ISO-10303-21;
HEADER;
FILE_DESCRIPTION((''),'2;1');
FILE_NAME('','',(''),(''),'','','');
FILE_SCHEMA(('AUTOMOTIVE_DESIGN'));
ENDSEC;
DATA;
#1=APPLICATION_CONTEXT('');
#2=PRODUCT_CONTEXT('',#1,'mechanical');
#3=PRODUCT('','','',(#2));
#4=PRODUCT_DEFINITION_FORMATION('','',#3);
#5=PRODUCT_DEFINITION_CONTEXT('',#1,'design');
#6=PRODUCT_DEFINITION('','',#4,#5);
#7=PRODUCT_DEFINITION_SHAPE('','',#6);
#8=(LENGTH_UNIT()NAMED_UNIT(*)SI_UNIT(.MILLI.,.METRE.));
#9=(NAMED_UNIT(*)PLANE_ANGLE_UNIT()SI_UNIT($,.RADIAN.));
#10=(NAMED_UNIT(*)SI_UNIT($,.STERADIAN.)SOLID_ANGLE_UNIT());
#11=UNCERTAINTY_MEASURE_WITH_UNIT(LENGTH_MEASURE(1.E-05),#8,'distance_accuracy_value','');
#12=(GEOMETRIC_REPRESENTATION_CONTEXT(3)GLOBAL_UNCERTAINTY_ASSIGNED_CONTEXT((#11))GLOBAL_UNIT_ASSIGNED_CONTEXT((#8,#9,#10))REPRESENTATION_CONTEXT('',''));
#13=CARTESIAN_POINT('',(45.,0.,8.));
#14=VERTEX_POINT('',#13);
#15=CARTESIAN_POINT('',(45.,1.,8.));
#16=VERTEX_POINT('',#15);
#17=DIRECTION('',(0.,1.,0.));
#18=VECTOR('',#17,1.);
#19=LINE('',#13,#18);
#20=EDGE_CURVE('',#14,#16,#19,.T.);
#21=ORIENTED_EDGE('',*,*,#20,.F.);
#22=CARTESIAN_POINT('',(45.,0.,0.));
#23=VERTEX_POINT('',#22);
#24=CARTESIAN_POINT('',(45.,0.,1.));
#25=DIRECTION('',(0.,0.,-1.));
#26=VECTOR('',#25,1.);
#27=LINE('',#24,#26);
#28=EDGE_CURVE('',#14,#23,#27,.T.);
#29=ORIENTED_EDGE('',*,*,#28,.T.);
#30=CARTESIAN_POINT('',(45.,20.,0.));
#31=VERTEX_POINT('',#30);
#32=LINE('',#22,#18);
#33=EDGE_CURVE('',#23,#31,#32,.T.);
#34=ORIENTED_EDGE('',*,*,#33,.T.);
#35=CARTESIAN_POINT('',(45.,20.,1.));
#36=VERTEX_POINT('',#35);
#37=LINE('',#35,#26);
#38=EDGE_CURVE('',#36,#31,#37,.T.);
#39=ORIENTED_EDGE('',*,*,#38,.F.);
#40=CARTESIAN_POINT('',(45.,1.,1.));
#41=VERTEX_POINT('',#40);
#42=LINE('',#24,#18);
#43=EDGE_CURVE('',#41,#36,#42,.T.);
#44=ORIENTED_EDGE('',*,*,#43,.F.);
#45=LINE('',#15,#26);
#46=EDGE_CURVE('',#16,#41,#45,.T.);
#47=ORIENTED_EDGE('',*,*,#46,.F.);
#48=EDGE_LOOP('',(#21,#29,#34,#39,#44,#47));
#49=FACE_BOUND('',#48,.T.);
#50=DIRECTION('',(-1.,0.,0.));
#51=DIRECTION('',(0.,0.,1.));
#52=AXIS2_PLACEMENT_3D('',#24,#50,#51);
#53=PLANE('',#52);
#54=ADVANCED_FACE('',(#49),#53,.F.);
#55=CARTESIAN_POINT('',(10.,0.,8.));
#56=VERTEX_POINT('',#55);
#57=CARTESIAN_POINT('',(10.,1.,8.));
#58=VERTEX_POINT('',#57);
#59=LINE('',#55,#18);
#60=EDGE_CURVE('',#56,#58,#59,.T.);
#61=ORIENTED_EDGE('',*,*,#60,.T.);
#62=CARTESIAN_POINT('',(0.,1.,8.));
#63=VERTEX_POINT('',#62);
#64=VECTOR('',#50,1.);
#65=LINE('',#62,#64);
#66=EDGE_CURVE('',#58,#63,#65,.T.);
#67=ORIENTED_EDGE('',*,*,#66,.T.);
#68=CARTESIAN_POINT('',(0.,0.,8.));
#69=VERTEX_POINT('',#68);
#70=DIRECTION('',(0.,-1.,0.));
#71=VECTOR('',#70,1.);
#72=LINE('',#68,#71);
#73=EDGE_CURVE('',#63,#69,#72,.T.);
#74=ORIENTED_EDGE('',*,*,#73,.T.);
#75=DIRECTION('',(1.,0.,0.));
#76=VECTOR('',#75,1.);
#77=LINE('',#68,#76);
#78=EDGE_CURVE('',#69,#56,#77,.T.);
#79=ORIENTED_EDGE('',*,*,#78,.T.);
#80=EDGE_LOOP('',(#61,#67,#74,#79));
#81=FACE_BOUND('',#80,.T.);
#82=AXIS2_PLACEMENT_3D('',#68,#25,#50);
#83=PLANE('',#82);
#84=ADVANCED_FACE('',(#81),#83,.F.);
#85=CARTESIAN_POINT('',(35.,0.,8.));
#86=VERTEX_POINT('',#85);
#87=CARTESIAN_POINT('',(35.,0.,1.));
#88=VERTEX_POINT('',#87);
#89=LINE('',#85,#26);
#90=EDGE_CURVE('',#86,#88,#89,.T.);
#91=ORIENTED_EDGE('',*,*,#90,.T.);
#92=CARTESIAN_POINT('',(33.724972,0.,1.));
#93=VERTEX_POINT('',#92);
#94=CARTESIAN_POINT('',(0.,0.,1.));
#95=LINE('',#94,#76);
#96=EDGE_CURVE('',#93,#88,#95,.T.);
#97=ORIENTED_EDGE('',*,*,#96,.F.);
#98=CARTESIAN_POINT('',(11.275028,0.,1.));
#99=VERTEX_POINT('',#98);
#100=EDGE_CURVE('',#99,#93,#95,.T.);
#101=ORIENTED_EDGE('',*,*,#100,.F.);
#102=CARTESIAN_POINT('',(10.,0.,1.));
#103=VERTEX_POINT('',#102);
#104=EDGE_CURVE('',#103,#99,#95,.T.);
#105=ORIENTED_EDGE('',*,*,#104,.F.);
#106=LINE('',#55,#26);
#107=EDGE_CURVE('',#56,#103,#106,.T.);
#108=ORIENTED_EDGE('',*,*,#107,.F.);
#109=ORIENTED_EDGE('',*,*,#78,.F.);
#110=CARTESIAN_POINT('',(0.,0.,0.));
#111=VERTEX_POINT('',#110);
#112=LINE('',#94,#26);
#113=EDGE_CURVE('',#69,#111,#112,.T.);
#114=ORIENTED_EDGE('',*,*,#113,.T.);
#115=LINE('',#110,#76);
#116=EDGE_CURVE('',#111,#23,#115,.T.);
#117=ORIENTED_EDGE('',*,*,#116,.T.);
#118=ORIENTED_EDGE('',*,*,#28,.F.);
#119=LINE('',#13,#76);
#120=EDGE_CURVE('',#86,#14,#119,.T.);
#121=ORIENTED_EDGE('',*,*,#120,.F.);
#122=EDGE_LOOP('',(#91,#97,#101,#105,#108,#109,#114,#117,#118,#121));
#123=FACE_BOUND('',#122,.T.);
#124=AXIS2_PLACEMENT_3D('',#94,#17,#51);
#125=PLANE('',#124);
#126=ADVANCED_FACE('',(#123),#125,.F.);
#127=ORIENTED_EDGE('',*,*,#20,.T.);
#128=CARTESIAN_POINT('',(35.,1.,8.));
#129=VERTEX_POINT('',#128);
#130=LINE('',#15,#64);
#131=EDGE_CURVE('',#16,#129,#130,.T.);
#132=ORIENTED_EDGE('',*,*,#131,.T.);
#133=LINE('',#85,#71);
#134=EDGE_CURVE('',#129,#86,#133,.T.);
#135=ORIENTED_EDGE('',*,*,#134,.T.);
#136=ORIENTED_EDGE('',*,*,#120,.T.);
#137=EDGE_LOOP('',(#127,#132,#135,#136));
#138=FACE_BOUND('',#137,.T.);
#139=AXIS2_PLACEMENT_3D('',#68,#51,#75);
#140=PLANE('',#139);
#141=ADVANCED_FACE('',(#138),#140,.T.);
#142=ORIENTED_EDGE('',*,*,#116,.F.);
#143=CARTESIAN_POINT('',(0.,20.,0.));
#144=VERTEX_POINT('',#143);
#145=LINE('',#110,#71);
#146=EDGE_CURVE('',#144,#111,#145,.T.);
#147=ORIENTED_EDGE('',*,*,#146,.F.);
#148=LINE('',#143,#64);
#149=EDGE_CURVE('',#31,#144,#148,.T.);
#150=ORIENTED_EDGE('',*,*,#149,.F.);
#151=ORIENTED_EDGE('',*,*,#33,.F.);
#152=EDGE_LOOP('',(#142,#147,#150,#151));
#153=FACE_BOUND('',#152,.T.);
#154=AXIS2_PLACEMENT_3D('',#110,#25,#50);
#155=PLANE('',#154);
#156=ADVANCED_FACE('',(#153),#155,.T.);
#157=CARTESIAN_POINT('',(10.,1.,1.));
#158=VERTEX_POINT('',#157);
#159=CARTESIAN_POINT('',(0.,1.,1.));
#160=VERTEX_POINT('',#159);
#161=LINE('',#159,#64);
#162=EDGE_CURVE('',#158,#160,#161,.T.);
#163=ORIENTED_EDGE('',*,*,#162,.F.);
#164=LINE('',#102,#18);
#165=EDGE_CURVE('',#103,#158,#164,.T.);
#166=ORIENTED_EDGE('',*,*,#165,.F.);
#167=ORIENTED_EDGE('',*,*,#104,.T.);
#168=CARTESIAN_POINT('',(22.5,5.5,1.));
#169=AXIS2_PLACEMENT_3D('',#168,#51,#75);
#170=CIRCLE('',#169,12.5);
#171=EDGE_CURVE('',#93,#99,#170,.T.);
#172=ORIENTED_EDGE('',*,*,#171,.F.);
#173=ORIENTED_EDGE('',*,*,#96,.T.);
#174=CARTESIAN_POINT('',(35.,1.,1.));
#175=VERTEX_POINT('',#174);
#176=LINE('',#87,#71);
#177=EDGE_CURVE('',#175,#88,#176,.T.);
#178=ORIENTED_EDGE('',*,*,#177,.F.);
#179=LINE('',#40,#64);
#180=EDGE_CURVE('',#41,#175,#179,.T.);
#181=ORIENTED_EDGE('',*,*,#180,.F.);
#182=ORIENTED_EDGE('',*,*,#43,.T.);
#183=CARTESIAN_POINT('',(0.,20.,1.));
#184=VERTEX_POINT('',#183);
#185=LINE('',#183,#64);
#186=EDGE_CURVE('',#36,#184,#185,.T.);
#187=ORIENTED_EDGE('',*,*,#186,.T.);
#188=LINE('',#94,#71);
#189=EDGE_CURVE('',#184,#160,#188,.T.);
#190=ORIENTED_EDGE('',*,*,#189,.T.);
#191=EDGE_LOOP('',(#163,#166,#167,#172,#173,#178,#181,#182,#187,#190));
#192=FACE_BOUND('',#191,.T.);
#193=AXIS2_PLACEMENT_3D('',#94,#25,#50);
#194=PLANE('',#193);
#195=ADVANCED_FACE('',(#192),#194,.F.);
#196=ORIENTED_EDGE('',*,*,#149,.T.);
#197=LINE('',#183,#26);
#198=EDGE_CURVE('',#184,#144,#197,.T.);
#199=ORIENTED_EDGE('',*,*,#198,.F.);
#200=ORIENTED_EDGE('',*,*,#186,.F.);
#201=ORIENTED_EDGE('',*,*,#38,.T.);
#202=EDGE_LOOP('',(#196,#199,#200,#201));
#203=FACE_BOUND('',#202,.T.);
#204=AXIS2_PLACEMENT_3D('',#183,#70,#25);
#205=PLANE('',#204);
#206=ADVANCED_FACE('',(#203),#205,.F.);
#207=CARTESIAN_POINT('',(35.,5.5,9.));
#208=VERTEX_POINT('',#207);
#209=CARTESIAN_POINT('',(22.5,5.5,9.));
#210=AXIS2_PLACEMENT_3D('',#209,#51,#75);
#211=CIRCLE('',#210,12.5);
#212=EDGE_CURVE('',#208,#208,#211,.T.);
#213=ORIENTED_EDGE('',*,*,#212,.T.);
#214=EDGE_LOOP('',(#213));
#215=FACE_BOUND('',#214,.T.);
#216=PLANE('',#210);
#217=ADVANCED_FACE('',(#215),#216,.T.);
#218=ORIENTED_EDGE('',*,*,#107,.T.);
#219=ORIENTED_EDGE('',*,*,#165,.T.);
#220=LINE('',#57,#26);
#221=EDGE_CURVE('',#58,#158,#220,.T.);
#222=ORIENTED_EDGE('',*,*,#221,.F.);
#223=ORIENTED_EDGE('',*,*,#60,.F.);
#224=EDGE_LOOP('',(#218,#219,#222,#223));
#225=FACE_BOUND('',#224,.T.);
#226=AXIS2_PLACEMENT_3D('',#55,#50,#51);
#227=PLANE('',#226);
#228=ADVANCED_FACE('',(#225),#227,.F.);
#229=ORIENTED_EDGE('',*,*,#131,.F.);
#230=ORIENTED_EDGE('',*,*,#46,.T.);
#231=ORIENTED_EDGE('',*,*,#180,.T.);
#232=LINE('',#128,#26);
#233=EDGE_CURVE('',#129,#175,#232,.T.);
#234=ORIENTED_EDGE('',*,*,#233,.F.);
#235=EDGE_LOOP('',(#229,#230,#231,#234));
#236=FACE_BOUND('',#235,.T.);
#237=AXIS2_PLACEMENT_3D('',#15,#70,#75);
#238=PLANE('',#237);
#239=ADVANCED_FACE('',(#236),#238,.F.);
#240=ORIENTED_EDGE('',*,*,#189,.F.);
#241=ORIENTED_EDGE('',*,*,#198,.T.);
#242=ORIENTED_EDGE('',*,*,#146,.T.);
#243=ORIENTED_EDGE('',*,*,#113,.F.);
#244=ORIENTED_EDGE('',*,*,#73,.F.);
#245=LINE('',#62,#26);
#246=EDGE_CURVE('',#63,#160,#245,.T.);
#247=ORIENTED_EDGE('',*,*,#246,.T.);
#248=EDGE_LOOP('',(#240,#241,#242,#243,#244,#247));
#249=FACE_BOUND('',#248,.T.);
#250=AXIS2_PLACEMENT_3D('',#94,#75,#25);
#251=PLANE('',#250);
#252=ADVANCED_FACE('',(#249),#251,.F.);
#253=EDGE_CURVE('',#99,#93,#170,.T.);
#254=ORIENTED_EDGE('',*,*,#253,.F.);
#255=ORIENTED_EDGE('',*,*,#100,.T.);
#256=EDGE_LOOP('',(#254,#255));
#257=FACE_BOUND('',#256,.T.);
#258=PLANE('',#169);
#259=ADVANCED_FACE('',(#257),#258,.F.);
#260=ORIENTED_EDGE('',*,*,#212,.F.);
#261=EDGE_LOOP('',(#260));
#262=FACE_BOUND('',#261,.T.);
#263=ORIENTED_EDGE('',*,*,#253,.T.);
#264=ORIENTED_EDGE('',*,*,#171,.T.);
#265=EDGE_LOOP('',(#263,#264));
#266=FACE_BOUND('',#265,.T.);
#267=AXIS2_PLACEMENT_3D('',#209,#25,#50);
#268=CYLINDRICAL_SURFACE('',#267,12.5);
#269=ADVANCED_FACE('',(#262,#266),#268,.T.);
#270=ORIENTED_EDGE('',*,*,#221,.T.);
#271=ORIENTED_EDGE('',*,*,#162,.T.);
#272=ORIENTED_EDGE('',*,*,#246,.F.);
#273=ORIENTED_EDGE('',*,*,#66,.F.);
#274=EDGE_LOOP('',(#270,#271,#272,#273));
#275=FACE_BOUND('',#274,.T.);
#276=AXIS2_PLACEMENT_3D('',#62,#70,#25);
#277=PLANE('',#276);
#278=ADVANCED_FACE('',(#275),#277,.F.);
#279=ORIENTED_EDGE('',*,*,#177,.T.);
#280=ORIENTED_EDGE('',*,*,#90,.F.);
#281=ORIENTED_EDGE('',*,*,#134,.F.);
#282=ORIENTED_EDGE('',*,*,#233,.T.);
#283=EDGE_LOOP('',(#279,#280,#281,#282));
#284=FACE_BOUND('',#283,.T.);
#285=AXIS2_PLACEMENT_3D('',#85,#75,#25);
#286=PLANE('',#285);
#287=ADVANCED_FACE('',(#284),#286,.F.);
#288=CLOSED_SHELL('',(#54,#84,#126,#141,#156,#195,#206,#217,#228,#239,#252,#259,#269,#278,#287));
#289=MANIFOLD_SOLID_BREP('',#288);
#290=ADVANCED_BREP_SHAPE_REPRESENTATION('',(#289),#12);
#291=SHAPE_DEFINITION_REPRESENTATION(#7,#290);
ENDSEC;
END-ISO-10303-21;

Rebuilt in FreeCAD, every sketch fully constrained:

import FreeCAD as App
import Part
import Sketcher
from FreeCAD import Vector
Q = App.Units.Quantity


def add_polygon(sketch, points):
    """Adds a closed chain of lines whose ends are joined by coincident constraints."""
    first, n = sketch.GeometryCount, len(points)
    for a, b in zip(points, points[1:] + points[:1]):
        sketch.addGeometry(Part.LineSegment(App.Vector(*a, 0), App.Vector(*b, 0)), False)
    for i in range(n):
        sketch.addConstraint(Sketcher.Constraint("Coincident", first + i, 2, first + (i + 1) % n, 1))

doc = App.newDocument("Part")
body = doc.addObject("PartDesign::Body", "Body")

sketch1 = doc.addObject("Sketcher::SketchObject", "Sketch")
body.addObject(sketch1)
sketch1.AttachmentSupport = (doc.XY_Plane, [""])
sketch1.MapMode = "FlatFace"
add_polygon(sketch1, [(0, 20), (0, 0), (45, 0), (45, 20)])
sketch1.addConstraint([
    Sketcher.Constraint("Vertical", 0),
    Sketcher.Constraint("Horizontal", 1),
    Sketcher.Constraint("Vertical", 2),
    Sketcher.Constraint("Horizontal", 3),
    Sketcher.Constraint("Coincident", 0, 2, -1, 1),
    Sketcher.Constraint("DistanceX", 1, 1, 1, 2, Q("45 mm")),
    Sketcher.Constraint("DistanceY", 0, 2, 0, 1, Q("20 mm")),
])
pad1 = doc.addObject("PartDesign::Pad", "Pad")
body.addObject(pad1)
pad1.Profile = sketch1
pad1.Length = 1

sketch2 = doc.addObject("Sketcher::SketchObject", "Sketch001")
body.addObject(sketch2)
sketch2.AttachmentSupport = (doc.XY_Plane, [""])
sketch2.MapMode = "FlatFace"
sketch2.AttachmentOffset = App.Placement(Vector(0, 0, 1), App.Rotation())
sketch2.addGeometry(Part.Circle(Vector(22, 6, 0), Vector(0, 0, 1), 12), False)
sketch2.addConstraint([
    Sketcher.Constraint("Diameter", 0, Q("25 mm")),
    Sketcher.Constraint("DistanceX", -1, 1, 0, 3, Q("22.5 mm")),
    Sketcher.Constraint("DistanceY", -1, 1, 0, 3, Q("5.5 mm")),
])
pad2 = doc.addObject("PartDesign::Pad", "Pad001")
body.addObject(pad2)
pad2.Profile = sketch2
pad2.Length = 8

sketch3 = doc.addObject("Sketcher::SketchObject", "Sketch002")
body.addObject(sketch3)
sketch3.AttachmentSupport = (doc.XY_Plane, [""])
sketch3.MapMode = "FlatFace"
sketch3.AttachmentOffset = App.Placement(Vector(0, 0, 1), App.Rotation())
add_polygon(sketch3, [(0, 1), (0, 0), (10, 0), (10, 1)])
add_polygon(sketch3, [(35, 1), (35, 0), (45, 0), (45, 1)])
sketch3.addConstraint([
    Sketcher.Constraint("Vertical", 0),
    Sketcher.Constraint("Horizontal", 1),
    Sketcher.Constraint("Vertical", 2),
    Sketcher.Constraint("Horizontal", 3),
    Sketcher.Constraint("Vertical", 4),
    Sketcher.Constraint("Horizontal", 5),
    Sketcher.Constraint("Vertical", 6),
    Sketcher.Constraint("Horizontal", 7),
    Sketcher.Constraint("Coincident", 0, 2, -1, 1),
    Sketcher.Constraint("PointOnObject", 4, 2, -1),
    Sketcher.Constraint("Horizontal", 3, 2, 6, 2),
    Sketcher.Constraint("Equal", 3, 5),
    Sketcher.Constraint("DistanceX", 1, 1, 1, 2, Q("10 mm")),
    Sketcher.Constraint("DistanceY", 0, 2, 0, 1, Q("1 mm")),
    Sketcher.Constraint("DistanceX", -1, 1, 4, 2, Q("35 mm")),
])
pad3 = doc.addObject("PartDesign::Pad", "Pad002")
body.addObject(pad3)
pad3.Profile = sketch3
pad3.Length = 7

doc.recompute()
